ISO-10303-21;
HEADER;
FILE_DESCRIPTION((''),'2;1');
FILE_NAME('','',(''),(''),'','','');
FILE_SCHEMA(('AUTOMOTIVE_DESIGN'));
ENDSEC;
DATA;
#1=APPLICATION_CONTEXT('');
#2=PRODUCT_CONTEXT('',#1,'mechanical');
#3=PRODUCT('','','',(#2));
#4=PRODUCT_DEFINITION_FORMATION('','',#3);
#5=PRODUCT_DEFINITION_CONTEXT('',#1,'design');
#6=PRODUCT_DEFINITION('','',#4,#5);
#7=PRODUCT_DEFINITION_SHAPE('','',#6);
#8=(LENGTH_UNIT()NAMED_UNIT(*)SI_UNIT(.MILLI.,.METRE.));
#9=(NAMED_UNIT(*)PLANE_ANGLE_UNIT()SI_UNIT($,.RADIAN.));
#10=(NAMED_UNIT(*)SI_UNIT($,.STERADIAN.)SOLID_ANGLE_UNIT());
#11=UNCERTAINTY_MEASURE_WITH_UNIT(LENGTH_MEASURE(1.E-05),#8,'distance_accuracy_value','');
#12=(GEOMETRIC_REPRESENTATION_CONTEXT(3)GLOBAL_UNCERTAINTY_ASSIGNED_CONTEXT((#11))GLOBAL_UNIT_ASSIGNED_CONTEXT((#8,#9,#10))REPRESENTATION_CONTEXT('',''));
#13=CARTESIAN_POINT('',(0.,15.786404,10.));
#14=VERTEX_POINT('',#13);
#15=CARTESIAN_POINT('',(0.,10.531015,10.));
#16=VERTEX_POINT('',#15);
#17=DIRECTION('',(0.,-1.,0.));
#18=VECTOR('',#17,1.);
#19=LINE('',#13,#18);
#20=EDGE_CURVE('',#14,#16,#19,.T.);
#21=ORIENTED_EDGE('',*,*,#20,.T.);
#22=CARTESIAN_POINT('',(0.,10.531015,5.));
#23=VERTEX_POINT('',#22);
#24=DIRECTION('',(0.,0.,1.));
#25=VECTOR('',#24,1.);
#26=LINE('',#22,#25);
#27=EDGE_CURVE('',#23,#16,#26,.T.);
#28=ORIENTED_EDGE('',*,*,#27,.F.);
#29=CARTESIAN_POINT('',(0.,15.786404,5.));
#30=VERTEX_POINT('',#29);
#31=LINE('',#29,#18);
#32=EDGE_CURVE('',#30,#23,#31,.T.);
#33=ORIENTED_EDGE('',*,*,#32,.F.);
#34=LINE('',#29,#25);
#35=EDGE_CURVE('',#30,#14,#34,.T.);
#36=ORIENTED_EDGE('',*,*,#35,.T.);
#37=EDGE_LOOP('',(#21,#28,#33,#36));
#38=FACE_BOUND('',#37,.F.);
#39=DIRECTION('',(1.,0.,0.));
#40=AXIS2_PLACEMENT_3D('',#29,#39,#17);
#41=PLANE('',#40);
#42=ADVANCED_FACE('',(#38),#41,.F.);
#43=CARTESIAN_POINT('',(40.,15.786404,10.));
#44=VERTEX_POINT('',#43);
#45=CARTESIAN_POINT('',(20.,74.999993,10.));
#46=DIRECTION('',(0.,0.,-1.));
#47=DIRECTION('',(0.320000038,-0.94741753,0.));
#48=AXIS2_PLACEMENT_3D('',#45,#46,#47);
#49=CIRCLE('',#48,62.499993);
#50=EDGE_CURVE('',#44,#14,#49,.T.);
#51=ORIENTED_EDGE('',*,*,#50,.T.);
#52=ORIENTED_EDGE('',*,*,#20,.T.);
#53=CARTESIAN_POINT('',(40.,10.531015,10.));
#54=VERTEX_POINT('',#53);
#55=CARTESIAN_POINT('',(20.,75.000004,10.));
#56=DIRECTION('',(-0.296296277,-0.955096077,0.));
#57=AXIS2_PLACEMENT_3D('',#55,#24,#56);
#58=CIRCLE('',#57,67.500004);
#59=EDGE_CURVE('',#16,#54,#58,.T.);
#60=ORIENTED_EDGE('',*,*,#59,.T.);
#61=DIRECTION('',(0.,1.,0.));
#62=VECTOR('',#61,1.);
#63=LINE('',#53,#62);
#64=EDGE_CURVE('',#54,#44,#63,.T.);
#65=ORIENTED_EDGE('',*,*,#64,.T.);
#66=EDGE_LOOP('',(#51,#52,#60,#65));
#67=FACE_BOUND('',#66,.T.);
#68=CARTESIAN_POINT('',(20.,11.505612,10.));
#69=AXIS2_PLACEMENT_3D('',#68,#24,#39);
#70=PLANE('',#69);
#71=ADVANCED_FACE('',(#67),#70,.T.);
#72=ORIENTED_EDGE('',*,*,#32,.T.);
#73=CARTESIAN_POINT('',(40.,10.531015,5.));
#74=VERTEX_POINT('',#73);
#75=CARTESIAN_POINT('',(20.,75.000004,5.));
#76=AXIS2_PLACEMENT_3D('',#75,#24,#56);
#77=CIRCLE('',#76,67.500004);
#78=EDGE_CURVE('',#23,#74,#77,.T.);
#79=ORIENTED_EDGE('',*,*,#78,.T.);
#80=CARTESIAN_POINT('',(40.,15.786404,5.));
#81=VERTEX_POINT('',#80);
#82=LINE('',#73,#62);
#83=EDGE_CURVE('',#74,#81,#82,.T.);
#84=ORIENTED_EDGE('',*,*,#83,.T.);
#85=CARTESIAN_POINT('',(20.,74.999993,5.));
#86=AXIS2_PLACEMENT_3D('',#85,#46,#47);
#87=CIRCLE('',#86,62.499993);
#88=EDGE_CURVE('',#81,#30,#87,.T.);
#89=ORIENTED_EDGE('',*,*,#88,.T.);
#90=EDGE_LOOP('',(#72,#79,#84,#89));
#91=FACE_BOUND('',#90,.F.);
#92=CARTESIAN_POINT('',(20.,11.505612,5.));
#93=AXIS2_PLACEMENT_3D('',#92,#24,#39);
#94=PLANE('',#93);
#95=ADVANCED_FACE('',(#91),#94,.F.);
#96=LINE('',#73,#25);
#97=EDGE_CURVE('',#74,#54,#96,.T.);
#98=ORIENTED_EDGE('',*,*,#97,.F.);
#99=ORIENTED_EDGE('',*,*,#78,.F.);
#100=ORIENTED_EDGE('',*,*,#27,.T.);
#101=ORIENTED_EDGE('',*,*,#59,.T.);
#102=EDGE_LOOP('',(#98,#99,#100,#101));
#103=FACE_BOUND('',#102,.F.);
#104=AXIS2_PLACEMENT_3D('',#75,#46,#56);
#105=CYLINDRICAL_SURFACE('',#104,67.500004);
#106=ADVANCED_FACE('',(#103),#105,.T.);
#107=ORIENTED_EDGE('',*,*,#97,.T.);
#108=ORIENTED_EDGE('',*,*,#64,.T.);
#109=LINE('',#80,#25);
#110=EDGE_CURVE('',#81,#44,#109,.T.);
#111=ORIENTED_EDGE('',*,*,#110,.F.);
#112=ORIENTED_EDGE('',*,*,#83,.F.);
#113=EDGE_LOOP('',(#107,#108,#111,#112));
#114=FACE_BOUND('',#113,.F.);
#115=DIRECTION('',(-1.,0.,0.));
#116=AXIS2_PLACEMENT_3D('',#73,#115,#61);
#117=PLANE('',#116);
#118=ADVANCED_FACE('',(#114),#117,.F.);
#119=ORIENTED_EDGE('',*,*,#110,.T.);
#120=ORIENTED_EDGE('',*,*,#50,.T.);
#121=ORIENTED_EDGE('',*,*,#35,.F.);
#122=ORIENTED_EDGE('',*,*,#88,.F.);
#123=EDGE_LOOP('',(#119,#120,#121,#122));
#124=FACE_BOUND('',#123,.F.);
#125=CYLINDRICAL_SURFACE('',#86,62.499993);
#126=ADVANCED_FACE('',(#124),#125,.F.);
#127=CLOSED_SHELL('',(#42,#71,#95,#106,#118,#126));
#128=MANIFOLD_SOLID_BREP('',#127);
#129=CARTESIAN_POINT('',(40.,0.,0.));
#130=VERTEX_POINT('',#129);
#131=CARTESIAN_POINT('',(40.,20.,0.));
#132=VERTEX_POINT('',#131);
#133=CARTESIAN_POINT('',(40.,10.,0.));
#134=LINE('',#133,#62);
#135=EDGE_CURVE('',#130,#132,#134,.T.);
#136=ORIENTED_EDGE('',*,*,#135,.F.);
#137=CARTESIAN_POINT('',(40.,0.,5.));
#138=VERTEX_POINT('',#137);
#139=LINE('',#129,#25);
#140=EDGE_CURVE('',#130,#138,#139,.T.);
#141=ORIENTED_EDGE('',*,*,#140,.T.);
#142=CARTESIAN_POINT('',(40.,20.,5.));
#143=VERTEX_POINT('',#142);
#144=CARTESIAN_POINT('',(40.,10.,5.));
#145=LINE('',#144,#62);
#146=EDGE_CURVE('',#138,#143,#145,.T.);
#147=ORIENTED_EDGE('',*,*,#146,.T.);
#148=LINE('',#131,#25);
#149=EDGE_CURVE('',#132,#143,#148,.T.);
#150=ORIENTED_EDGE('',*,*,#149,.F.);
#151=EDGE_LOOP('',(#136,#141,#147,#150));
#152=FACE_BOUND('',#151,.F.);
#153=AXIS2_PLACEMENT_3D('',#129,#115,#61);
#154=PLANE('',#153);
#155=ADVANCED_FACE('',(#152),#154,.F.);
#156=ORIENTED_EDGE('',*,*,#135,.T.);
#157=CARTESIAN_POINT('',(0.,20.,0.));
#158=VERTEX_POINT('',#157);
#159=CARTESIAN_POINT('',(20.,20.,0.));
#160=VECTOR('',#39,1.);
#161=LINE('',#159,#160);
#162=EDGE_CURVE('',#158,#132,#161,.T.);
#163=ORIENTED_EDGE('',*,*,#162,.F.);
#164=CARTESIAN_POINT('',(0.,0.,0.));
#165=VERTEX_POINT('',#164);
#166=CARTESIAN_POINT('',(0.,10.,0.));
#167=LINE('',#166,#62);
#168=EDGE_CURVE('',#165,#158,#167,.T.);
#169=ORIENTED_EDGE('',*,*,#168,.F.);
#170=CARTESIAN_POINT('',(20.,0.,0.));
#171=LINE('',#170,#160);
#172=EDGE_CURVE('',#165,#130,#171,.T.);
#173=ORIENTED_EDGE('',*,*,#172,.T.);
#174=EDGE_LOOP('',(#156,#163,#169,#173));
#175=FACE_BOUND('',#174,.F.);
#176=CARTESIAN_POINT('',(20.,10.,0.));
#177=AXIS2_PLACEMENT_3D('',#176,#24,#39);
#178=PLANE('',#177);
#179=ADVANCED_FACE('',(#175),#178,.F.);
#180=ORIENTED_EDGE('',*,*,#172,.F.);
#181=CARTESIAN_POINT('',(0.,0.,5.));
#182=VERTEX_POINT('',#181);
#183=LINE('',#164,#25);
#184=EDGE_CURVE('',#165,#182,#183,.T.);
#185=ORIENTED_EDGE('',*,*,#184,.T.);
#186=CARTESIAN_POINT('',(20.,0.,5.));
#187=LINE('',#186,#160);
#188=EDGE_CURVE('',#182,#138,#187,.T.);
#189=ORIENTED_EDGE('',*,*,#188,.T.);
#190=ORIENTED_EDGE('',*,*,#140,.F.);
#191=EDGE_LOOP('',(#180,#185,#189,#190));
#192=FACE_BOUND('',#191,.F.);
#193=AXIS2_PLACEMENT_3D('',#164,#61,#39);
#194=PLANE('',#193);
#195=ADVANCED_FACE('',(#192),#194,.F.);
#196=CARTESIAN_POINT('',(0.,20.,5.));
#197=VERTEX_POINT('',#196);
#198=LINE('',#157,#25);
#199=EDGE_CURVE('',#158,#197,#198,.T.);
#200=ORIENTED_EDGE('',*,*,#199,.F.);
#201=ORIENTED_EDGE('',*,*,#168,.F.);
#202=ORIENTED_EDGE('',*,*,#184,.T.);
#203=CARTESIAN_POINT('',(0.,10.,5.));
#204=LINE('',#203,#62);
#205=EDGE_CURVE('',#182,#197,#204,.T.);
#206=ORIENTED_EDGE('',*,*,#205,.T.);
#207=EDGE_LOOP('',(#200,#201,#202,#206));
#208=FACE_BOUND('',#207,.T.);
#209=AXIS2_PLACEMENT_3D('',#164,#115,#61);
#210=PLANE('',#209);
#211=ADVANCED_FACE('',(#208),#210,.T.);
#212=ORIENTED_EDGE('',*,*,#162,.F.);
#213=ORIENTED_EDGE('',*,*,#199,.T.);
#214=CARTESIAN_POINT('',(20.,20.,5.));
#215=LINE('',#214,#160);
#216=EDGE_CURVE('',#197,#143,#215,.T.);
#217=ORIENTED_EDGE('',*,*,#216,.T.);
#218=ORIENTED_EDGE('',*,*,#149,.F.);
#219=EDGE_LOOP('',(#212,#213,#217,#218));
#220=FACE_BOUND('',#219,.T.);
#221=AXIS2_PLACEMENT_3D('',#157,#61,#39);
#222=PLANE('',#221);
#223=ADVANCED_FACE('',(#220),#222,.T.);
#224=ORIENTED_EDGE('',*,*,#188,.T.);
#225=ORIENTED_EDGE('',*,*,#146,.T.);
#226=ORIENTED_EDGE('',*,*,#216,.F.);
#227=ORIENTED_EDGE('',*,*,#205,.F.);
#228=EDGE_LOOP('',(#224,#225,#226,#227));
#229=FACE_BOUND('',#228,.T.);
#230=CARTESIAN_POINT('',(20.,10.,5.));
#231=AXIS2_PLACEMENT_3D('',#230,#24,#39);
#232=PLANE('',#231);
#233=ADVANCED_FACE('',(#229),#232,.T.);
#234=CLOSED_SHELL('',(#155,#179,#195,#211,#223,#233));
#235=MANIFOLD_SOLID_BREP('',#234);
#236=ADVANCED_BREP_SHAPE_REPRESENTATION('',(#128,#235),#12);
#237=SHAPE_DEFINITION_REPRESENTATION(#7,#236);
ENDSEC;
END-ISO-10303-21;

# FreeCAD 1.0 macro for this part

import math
import FreeCAD as App
import Part
import Sketcher
from FreeCAD import Vector
Q = App.Units.Quantity

doc = App.newDocument("Part")
body = doc.addObject("PartDesign::Body", "Body")

# Sketch on XY plane
sketch1 = body.newObject("Sketcher::SketchObject", "Sketch")
sketch1.AttachmentSupport = (doc.getObject("XY_Plane"), [""])
sketch1.MapMode = "FlatFace"
sketch1.addGeometry([
    Part.LineSegment(Vector(0, 20, 0), Vector(0, 0, 0)),
    Part.LineSegment(Vector(0, 0, 0), Vector(40, 0, 0)),
    Part.LineSegment(Vector(40, 0, 0), Vector(40, 20, 0)),
    Part.LineSegment(Vector(40, 20, 0), Vector(0, 20, 0)),
], False)
sketch1.addConstraint([
    Sketcher.Constraint("Coincident", 0, 2, 1, 1),
    Sketcher.Constraint("Coincident", 1, 2, 2, 1),
    Sketcher.Constraint("Coincident", 2, 2, 3, 1),
    Sketcher.Constraint("Coincident", 3, 2, 0, 1),
    Sketcher.Constraint("Vertical", 0),
    Sketcher.Constraint("Horizontal", 1),
    Sketcher.Constraint("Vertical", 2),
    Sketcher.Constraint("Horizontal", 3),
    Sketcher.Constraint("Coincident", 0, 2, -1, 1),
    Sketcher.Constraint("DistanceX", 1, 1, 1, 2, Q("40 mm")),
    Sketcher.Constraint("DistanceY", 0, 2, 0, 1, Q("20 mm")),
])
pad1 = body.newObject("PartDesign::Pad", "Pad")
pad1.Profile = sketch1
pad1.Length = 5
body2 = doc.addObject("PartDesign::Body", "Body001")

# Sketch on XY plane
sketch2 = body2.newObject("Sketcher::SketchObject", "Sketch001")
sketch2.AttachmentSupport = (doc.getObject("XY_Plane001"), [""])
sketch2.MapMode = "FlatFace"
sketch2.AttachmentOffset = App.Placement(Vector(0, 0, 5), App.Rotation())
sketch2.addGeometry([
    Part.LineSegment(Vector(0, 16, 0), Vector(0, 11, 0)),
    Part.ArcOfCircle(Part.Circle(Vector(20, 75, 0), Vector(0, 0, 1), 68), math.radians(-107), math.radians(-73)),
    Part.LineSegment(Vector(40, 11, 0), Vector(40, 16, 0)),
    Part.ArcOfCircle(Part.Circle(Vector(20, 75, 0), Vector(0, 0, 1), 62), math.radians(-109), math.radians(-71)),
], False)
sketch2.addConstraint([
    Sketcher.Constraint("Coincident", 0, 2, 1, 1),
    Sketcher.Constraint("Coincident", 1, 2, 2, 1),
    Sketcher.Constraint("Coincident", 2, 2, 3, 2),
    Sketcher.Constraint("Coincident", 3, 1, 0, 1),
    Sketcher.Constraint("Vertical", 0),
    Sketcher.Constraint("Vertical", 2),
    Sketcher.Constraint("PointOnObject", 0, 2, -2),
    Sketcher.Constraint("Horizontal", 0, 2, 1, 2),
    Sketcher.Constraint("Horizontal", 2, 2, 3, 1),
    Sketcher.Constraint("DistanceX", -1, 1, 1, 3, Q("20 mm")),
    Sketcher.Constraint("Radius", 1, Q("67.500004 mm")),
    Sketcher.Constraint("Radius", 3, Q("62.499993 mm")),
    Sketcher.Constraint("DistanceY", 0, 2, 0, 1, Q("5.255389 mm")),
    Sketcher.Constraint("DistanceY", -1, 1, 1, 3, Q("75.000004 mm")),
])
pad2 = body2.newObject("PartDesign::Pad", "Pad001")
pad2.Profile = sketch2
pad2.Length = 5

doc.recompute()
